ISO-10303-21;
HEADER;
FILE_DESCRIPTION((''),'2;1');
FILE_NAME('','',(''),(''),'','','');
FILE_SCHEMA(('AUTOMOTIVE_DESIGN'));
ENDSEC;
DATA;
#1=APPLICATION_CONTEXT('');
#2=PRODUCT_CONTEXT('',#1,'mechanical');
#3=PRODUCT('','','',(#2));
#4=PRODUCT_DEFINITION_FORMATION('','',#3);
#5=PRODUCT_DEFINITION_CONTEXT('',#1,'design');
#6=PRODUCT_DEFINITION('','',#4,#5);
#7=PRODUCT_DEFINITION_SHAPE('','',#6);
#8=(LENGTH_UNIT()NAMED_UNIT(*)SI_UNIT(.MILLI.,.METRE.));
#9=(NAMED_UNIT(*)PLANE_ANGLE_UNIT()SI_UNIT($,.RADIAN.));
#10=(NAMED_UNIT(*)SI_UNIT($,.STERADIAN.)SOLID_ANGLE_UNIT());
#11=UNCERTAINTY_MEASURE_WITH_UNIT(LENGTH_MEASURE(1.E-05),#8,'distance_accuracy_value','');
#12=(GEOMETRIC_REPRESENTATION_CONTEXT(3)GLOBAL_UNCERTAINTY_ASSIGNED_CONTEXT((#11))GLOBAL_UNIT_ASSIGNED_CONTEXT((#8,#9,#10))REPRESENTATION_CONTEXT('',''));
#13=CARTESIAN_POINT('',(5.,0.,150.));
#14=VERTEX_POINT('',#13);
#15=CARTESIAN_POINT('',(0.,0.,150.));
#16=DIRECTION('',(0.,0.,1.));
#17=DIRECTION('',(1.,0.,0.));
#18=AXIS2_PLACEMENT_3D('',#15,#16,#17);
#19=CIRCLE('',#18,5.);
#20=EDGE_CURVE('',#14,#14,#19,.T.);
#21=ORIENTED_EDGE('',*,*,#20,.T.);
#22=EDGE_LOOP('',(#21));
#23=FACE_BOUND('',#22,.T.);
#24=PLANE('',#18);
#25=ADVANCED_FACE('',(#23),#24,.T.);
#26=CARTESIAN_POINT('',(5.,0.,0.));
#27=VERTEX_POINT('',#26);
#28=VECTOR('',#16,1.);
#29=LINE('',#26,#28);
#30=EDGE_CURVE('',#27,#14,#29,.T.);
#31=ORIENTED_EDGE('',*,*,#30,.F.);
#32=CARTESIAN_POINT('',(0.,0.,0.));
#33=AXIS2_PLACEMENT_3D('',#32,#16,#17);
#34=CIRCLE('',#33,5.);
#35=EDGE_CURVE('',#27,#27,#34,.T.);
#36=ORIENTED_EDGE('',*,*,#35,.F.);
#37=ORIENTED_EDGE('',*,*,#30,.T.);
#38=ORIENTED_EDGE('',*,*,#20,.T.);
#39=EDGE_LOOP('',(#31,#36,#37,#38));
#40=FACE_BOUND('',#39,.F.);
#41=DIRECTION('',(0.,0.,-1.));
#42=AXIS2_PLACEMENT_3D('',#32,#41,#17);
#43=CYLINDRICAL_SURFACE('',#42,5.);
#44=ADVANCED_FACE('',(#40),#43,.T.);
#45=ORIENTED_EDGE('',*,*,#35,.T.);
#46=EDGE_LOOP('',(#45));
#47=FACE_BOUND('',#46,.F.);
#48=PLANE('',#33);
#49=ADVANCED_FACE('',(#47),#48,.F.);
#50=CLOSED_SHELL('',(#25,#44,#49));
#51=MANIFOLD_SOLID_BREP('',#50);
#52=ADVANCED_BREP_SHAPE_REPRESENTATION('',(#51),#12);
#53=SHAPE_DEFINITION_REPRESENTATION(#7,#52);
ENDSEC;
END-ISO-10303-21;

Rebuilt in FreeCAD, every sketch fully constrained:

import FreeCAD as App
import Part
import Sketcher
from FreeCAD import Vector
Q = App.Units.Quantity

doc = App.newDocument("Part")
body = doc.addObject("PartDesign::Body", "Body")

# Sketch on XY plane
sketch1 = body.newObject("Sketcher::SketchObject", "Sketch")
sketch1.AttachmentSupport = (doc.getObject("XY_Plane"), [""])
sketch1.MapMode = "FlatFace"
sketch1.addGeometry(Part.Circle(Vector(0, 0, 0), Vector(0, 0, 1), 5), False)
sketch1.addConstraint([
    Sketcher.Constraint("Coincident", 0, 3, -1, 1),
    Sketcher.Constraint("Diameter", 0, Q("10 mm")),
])
pad1 = body.newObject("PartDesign::Pad", "Pad")
pad1.Profile = sketch1
pad1.Length = 150

doc.recompute()
